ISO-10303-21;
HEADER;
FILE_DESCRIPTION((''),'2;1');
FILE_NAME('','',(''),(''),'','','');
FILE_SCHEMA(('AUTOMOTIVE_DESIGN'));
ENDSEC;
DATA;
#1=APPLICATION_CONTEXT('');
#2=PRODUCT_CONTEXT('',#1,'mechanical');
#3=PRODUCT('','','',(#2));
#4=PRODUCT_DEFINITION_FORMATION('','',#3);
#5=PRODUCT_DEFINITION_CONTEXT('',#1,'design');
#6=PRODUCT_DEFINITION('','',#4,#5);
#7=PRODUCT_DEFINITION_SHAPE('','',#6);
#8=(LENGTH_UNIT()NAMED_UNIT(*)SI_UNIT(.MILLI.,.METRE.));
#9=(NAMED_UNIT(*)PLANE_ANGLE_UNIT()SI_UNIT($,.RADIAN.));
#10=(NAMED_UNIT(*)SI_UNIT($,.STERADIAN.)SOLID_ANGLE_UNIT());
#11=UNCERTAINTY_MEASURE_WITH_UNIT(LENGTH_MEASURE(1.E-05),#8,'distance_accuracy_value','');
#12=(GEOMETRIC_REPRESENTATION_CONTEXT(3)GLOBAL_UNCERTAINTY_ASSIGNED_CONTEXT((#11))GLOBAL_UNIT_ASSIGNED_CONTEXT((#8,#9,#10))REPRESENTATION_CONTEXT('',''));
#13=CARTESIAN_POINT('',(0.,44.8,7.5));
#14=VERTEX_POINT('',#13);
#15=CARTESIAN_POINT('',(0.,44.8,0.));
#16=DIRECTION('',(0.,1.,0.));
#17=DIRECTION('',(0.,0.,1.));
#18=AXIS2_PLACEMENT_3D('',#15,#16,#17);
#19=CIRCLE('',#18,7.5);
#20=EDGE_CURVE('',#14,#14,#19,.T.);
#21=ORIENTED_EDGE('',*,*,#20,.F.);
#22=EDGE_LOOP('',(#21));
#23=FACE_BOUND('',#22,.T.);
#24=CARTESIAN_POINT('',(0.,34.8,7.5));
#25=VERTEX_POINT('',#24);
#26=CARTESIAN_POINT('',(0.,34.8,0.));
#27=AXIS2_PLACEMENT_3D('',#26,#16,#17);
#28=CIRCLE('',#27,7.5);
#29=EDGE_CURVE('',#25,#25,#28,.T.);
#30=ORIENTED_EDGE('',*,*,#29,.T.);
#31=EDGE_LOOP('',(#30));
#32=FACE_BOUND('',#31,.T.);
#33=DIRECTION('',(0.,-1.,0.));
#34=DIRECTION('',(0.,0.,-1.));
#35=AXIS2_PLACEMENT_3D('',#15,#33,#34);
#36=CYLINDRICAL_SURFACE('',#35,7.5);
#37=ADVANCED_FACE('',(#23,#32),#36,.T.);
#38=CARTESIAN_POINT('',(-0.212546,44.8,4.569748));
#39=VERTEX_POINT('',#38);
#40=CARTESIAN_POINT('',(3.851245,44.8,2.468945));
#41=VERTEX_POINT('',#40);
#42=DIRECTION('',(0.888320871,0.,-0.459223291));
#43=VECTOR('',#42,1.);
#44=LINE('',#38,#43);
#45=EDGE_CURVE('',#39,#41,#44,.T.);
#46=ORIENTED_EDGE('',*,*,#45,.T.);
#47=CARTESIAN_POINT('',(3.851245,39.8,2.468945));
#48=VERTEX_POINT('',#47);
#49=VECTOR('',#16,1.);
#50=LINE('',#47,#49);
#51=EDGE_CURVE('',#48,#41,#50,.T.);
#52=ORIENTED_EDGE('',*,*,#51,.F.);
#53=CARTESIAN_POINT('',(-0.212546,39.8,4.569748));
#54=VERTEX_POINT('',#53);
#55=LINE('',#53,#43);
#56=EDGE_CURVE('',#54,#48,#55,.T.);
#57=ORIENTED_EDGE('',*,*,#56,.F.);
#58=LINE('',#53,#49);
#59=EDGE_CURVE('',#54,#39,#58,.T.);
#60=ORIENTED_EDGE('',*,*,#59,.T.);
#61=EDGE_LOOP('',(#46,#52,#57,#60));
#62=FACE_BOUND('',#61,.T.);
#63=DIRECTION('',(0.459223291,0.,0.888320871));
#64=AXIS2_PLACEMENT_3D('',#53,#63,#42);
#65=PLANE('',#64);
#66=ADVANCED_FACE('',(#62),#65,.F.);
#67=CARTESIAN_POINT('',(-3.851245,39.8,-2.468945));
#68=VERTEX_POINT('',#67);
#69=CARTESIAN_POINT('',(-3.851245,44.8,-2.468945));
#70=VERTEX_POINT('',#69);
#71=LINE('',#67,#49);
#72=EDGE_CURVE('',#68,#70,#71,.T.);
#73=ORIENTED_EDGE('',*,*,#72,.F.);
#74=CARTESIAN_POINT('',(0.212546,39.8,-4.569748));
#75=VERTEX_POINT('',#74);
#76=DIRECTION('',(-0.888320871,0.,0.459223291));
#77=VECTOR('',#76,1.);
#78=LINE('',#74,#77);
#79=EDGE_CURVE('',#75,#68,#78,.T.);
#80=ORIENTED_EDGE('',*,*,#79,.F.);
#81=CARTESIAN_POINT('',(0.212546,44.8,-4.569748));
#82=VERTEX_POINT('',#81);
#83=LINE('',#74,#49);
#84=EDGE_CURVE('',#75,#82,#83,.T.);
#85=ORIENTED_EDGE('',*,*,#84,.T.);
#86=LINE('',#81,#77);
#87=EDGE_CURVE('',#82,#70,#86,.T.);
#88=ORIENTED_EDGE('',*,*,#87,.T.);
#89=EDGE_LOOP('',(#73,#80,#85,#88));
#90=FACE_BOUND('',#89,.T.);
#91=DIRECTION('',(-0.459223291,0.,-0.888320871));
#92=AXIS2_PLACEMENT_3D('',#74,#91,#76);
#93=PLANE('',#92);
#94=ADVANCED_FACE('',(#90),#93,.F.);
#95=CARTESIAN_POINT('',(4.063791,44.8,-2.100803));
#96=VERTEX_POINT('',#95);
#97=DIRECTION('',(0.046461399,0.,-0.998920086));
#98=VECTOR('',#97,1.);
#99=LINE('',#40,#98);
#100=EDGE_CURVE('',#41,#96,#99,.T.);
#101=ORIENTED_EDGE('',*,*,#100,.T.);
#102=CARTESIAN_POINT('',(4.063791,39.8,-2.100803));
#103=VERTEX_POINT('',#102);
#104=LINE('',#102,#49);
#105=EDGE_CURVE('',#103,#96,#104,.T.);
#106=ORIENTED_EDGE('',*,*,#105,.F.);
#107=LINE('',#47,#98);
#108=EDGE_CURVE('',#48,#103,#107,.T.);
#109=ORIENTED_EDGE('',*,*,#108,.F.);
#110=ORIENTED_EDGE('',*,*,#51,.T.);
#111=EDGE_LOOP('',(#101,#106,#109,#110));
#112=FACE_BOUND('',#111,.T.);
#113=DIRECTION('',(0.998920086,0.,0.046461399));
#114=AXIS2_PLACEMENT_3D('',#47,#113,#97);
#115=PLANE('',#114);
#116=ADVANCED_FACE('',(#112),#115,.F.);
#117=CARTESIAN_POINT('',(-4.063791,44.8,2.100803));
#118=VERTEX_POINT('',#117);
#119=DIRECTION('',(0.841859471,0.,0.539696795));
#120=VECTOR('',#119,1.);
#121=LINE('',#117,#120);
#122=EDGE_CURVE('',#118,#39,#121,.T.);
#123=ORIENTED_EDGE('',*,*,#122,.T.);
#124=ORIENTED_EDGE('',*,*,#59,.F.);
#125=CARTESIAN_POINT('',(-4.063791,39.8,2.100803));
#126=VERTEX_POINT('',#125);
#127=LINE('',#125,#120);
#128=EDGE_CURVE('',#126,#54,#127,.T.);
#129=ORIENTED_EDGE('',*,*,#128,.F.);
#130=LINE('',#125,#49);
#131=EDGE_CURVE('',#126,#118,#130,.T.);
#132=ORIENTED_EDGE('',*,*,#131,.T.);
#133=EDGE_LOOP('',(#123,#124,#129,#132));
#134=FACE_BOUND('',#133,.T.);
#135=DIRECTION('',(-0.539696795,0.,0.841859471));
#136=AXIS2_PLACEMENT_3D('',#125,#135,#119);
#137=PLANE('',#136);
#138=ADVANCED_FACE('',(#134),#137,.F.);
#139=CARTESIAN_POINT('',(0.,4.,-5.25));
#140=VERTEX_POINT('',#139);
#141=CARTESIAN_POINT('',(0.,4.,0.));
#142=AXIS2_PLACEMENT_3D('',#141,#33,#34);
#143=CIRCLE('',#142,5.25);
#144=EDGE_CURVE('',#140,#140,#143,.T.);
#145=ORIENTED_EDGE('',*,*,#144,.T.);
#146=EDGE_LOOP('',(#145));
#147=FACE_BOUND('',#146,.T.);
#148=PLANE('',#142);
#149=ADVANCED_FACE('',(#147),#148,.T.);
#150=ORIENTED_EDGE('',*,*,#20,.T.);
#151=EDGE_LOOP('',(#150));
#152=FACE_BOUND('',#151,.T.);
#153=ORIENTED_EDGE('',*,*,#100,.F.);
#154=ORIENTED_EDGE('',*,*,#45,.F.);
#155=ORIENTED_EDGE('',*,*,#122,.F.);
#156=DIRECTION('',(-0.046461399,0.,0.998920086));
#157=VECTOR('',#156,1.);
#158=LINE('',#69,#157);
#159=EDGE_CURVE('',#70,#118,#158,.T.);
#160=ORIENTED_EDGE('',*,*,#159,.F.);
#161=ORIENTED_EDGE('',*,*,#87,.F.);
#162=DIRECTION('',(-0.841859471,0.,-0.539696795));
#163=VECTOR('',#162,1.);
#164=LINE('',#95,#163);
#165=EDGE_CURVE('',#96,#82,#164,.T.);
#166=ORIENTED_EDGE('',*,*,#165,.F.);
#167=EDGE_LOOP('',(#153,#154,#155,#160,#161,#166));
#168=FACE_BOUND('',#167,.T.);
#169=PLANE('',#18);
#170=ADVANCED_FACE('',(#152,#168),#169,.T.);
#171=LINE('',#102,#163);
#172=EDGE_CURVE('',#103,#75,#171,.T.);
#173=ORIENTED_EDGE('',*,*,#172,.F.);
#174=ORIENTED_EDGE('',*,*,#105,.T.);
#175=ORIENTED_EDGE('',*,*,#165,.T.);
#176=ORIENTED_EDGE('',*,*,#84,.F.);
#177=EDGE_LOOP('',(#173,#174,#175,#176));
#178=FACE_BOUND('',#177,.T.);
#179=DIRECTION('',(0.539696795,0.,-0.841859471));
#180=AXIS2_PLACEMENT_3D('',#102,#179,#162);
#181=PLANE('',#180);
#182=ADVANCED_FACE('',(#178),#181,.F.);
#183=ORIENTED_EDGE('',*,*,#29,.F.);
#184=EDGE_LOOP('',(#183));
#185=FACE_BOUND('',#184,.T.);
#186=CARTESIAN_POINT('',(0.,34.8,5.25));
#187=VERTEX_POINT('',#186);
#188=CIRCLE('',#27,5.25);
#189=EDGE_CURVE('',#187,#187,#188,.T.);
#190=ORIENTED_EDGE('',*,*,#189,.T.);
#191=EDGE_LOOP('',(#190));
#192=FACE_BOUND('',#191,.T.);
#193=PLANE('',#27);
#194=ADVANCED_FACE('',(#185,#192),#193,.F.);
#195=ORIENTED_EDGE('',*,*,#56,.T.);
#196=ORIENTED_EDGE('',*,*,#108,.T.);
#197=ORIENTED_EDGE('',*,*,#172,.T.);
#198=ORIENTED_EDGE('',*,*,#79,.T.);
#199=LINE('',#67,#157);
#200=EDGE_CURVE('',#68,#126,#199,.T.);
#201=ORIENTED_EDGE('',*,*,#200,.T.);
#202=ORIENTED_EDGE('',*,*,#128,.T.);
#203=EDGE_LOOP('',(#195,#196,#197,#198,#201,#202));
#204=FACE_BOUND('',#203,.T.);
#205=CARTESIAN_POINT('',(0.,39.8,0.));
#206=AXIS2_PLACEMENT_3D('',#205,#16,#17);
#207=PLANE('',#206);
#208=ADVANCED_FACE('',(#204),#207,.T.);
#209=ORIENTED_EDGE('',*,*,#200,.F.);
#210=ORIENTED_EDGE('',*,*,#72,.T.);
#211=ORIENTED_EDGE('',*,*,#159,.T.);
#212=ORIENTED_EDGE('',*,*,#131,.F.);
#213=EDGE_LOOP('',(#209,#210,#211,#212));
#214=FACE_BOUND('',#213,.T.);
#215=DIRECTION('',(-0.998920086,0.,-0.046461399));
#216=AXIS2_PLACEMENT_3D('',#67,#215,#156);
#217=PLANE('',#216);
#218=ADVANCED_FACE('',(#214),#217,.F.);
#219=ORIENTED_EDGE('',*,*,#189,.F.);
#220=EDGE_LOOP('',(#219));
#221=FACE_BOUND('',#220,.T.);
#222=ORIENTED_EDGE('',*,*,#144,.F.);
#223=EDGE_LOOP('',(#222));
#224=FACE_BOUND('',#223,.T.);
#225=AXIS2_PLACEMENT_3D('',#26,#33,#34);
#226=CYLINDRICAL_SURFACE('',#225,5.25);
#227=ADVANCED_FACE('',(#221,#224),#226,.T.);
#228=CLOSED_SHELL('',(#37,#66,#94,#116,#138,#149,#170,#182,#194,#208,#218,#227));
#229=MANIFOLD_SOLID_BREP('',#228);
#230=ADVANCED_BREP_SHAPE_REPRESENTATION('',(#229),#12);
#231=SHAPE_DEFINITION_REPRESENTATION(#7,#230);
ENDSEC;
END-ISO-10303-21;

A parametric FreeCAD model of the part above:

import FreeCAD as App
import Part
import Sketcher
from FreeCAD import Vector


def add_polygon(sketch, points):
    """Adds a closed chain of lines whose ends are joined by coincident constraints."""
    first, n = sketch.GeometryCount, len(points)
    for a, b in zip(points, points[1:] + points[:1]):
        sketch.addGeometry(Part.LineSegment(App.Vector(*a, 0), App.Vector(*b, 0)), False)
    for i in range(n):
        sketch.addConstraint(Sketcher.Constraint("Coincident", first + i, 2, first + (i + 1) % n, 1))

doc = App.newDocument("Part")
body = doc.addObject("PartDesign::Body", "Body")

# Sketch on XZ plane
sketch1 = body.newObject("Sketcher::SketchObject", "Sketch")
sketch1.AttachmentSupport = (doc.getObject("XZ_Plane"), [""])
sketch1.MapMode = "FlatFace"
sketch1.addGeometry(Part.Circle(Vector(0, 0, 0), Vector(0, 0, 1), 5.25), False)
sketch1.addConstraint([
    Sketcher.Constraint("Coincident", 0, 3, -1, 1),
    Sketcher.Constraint("Diameter", 0, 10.5),
])
pad1 = body.newObject("PartDesign::Pad", "Pad")
pad1.Profile = sketch1
pad1.Length = 34.8
pad1.Reversed = True

# Sketch on XZ plane
sketch2 = body.newObject("Sketcher::SketchObject", "Sketch001")
sketch2.AttachmentSupport = (doc.getObject("XZ_Plane"), [""])
sketch2.MapMode = "FlatFace"
sketch2.AttachmentOffset = App.Placement(Vector(0, 0, -34.8), App.Rotation())
sketch2.addGeometry(Part.Circle(Vector(0, 0, 0), Vector(0, 0, 1), 7.5), False)
sketch2.addConstraint([
    Sketcher.Constraint("Coincident", 0, 3, -1, 1),
    Sketcher.Constraint("Diameter", 0, 15.0),
])
pad2 = body.newObject("PartDesign::Pad", "Pad001")
pad2.Profile = sketch2
pad2.Length = 10
pad2.Reversed = True

# Sketch on XZ plane
sketch3 = body.newObject("Sketcher::SketchObject", "Sketch002")
sketch3.AttachmentSupport = (doc.getObject("XZ_Plane"), [""])
sketch3.MapMode = "FlatFace"
sketch3.AttachmentOffset = App.Placement(Vector(0, 0, -44.8), App.Rotation())
add_polygon(sketch3, [(0.212546, -4.569748), (-3.851245, -2.468945), (-4.063791, 2.100803), (-0.212546, 4.569748), (3.851245, 2.468945), (4.063791, -2.100803)])  # lines 0-5
sketch3.addConstraint([
    Sketcher.Constraint("Symmetric", 0, 2, 3, 2, -1, 1),
    Sketcher.Constraint("Symmetric", 1, 2, 4, 2, -1, 1),
    Sketcher.Constraint("Symmetric", 2, 2, 5, 2, -1, 1),
    Sketcher.Constraint("Equal", 0, 1),
    Sketcher.Constraint("Equal", 1, 2),
    Sketcher.Constraint("DistanceX", 0, 2, 2, 2, 3.638698),
    Sketcher.Constraint("Distance", 0, 4.574688),
    Sketcher.Constraint("DistanceX", 1, 2, -1, 1, 4.063791),
    Sketcher.Constraint("DistanceX", 2, 2, 3, 2, 4.063791),
])
pocket1 = body.newObject("PartDesign::Pocket", "Pocket")
pocket1.Profile = sketch3
pocket1.Length = 5
pocket1.Reversed = True

# Sketch on XZ plane
sketch4 = body.newObject("Sketcher::SketchObject", "Sketch003")
sketch4.AttachmentSupport = (doc.getObject("XZ_Plane"), [""])
sketch4.MapMode = "FlatFace"
sketch4.addGeometry(Part.Circle(Vector(0, 0, 0), Vector(0, 0, 1), 5.25), False)
sketch4.addConstraint([
    Sketcher.Constraint("Coincident", 0, 3, -1, 1),
    Sketcher.Constraint("Diameter", 0, 10.5),
])
pocket2 = body.newObject("PartDesign::Pocket", "Pocket001")
pocket2.Profile = sketch4
pocket2.Length = 4

doc.recompute()
